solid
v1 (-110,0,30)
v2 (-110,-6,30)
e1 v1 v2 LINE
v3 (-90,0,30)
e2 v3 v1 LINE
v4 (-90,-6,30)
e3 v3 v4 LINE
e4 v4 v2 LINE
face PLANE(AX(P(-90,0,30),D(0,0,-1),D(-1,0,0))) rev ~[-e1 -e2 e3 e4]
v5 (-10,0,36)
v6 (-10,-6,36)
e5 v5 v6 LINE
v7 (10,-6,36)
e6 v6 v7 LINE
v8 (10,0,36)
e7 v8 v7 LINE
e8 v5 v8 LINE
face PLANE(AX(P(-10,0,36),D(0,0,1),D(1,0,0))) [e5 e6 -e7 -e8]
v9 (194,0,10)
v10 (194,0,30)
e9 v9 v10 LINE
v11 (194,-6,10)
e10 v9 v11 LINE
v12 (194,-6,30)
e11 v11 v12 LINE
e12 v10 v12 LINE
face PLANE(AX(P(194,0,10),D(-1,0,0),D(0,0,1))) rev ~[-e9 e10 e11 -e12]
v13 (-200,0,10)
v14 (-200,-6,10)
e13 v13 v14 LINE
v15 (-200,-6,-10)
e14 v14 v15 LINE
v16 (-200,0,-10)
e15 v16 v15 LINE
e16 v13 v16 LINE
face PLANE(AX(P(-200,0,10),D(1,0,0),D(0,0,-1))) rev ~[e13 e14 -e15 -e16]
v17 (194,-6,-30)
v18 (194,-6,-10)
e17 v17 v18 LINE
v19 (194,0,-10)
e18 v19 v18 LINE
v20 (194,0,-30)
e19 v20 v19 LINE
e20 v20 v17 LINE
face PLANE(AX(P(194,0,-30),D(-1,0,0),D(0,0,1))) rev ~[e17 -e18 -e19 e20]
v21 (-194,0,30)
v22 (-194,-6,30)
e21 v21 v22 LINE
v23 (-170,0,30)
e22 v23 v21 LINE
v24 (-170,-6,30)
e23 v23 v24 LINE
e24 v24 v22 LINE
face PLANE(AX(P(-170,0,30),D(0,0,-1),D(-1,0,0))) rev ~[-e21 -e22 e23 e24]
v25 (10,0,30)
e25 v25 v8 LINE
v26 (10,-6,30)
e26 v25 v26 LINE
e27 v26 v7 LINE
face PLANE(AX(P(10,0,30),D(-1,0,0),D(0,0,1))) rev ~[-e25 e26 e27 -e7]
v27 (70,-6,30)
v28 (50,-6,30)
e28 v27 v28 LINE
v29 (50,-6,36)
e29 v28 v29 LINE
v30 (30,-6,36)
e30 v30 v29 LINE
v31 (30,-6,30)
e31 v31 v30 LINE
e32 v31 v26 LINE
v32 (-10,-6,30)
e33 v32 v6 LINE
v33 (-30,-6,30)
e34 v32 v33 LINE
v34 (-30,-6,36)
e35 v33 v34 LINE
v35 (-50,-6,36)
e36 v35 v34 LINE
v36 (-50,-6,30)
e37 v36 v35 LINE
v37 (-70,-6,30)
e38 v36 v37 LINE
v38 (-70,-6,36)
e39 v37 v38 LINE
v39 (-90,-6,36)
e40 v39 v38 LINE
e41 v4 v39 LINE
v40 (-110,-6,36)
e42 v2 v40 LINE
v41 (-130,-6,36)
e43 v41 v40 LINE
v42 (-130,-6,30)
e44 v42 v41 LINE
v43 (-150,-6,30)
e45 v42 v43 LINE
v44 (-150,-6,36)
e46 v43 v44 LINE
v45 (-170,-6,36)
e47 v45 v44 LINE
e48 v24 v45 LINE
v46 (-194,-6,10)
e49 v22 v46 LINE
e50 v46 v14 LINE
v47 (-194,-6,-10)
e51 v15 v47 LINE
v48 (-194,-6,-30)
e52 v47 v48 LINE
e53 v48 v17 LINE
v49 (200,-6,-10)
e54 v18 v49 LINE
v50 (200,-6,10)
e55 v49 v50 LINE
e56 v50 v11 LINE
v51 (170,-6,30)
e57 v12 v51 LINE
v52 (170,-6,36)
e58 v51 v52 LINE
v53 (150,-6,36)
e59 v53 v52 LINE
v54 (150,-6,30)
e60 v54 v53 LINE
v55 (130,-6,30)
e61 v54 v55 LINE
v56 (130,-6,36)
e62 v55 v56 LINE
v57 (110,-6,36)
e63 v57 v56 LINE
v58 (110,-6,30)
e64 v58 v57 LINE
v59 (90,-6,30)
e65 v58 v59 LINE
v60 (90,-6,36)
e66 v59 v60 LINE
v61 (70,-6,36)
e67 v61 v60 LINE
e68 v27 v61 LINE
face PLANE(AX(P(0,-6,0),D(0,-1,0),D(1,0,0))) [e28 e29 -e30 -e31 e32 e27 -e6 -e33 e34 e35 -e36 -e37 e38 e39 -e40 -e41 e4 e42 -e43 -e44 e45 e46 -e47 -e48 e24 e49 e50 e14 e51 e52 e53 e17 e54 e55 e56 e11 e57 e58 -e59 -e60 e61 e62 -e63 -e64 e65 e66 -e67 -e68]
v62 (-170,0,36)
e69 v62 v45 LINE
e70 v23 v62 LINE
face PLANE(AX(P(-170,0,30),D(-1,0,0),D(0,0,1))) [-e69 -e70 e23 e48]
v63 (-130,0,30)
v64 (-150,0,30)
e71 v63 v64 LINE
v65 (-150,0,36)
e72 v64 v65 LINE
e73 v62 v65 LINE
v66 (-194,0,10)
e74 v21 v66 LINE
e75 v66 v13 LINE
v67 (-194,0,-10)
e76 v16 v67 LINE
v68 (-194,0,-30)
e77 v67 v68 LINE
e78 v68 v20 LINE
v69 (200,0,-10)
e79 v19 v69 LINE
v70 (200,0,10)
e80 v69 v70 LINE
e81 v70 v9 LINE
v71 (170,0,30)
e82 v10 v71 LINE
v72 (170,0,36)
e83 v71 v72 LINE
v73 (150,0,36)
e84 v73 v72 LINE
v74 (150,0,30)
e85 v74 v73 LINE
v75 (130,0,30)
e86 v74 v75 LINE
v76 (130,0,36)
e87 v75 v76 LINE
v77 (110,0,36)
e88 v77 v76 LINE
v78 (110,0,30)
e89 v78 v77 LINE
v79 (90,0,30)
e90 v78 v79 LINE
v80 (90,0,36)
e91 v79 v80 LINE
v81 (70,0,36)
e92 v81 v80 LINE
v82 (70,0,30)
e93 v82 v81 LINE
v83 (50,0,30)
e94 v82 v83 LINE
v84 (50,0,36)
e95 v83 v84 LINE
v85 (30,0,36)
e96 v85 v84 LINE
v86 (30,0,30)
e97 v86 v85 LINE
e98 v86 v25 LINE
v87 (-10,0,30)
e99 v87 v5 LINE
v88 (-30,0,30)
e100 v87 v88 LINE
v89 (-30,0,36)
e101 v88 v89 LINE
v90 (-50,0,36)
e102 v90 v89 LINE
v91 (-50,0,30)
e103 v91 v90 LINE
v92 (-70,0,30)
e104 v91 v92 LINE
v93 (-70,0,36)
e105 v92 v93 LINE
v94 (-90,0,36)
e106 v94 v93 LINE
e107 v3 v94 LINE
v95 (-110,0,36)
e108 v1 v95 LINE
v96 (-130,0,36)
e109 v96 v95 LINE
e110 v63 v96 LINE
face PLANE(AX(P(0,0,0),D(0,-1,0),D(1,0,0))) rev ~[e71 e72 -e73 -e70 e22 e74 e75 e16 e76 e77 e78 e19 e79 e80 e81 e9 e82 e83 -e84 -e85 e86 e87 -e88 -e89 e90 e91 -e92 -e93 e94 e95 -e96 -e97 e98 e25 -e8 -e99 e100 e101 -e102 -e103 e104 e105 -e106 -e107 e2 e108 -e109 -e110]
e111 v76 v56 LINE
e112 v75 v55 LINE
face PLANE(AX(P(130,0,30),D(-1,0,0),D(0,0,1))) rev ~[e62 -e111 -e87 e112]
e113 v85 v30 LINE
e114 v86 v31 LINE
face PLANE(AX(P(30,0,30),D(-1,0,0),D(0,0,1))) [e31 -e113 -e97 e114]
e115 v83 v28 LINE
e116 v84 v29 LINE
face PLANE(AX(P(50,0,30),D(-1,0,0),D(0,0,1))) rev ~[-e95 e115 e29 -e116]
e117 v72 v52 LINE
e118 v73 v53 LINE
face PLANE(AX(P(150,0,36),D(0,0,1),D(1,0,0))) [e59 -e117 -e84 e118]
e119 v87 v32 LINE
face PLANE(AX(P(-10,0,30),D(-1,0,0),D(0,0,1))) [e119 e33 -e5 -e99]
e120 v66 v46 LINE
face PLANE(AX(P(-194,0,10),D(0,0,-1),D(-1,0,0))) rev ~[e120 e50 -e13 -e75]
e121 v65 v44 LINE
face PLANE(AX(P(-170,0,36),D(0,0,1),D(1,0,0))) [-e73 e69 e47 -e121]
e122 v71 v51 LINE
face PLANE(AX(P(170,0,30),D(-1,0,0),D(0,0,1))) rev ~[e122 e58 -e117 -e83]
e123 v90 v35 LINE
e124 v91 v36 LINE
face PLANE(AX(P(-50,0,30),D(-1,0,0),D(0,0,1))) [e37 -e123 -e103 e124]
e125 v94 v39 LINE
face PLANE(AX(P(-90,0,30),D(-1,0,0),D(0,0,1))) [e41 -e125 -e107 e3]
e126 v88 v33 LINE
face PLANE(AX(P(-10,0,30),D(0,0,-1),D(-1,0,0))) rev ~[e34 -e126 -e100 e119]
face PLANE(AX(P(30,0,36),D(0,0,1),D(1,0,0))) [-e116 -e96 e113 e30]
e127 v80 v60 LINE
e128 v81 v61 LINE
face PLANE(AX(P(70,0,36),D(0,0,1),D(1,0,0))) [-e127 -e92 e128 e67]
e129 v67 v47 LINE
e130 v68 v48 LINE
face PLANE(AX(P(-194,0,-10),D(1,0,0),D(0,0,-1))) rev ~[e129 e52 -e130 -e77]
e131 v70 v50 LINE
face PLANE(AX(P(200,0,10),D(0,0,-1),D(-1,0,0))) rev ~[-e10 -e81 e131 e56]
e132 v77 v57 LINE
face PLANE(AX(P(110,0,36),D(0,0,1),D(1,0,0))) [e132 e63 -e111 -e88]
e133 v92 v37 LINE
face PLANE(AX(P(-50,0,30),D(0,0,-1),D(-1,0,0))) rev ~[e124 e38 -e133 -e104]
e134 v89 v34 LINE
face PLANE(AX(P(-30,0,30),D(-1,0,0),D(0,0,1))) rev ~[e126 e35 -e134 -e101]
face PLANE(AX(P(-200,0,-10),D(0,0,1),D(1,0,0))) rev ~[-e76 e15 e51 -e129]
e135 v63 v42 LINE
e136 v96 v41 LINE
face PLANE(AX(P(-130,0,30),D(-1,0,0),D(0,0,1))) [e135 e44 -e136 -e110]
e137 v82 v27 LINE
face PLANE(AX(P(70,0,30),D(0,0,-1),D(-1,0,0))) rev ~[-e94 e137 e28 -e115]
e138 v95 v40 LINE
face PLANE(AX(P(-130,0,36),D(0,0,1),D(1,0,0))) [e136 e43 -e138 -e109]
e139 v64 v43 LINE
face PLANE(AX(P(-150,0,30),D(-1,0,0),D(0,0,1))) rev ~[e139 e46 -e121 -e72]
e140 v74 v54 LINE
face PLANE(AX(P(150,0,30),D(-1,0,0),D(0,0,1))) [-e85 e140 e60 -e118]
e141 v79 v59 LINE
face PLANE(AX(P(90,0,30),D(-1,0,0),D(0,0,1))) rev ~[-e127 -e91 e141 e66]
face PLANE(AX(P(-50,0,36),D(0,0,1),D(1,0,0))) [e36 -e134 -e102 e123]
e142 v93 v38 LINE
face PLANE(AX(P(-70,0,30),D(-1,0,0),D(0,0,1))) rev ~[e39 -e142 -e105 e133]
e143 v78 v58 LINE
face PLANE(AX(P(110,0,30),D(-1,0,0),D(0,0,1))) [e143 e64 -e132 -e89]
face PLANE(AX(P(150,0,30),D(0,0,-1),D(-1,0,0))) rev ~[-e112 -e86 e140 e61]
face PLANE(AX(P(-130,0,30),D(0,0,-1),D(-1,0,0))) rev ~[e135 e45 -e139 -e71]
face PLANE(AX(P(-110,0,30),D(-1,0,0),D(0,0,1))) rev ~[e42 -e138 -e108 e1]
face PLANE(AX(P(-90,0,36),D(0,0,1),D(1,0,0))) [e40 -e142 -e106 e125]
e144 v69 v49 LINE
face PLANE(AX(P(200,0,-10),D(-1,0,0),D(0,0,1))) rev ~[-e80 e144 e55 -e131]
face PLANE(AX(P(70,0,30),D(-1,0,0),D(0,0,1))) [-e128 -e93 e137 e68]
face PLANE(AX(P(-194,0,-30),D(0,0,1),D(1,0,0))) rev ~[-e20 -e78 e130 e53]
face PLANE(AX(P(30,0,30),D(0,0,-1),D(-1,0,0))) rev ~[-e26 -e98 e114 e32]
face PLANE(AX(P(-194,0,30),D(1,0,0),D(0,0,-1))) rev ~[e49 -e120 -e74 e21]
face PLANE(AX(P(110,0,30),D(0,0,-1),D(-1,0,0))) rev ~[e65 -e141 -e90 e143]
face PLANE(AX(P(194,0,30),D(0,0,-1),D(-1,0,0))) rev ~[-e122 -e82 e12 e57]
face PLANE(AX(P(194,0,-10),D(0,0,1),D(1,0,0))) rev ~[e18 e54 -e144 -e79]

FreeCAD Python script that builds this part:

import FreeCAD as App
import Part
import Sketcher
from FreeCAD import Vector
Q = App.Units.Quantity

doc = App.newDocument("Part")
body = doc.addObject("PartDesign::Body", "Body")

sketch1 = body.newObject("Sketcher::SketchObject", "Sketch")
sketch1.AttachmentSupport = (doc.getObject("XZ_Plane"), [""])
sketch1.MapMode = "FlatFace"
sketch1.addGeometry(Part.LineSegment(Vector(-194, -30, 0), Vector(194, -30, 0)), False)
sketch1.addGeometry(Part.LineSegment(Vector(194, -30, 0), Vector(194, -10, 0)), False)
sketch1.addGeometry(Part.LineSegment(Vector(194, -10, 0), Vector(200, -10, 0)), False)
sketch1.addGeometry(Part.LineSegment(Vector(200, -10, 0), Vector(200, 10, 0)), False)
sketch1.addGeometry(Part.LineSegment(Vector(200, 10, 0), Vector(194, 10, 0)), False)
sketch1.addGeometry(Part.LineSegment(Vector(194, 10, 0), Vector(194, 30, 0)), False)
sketch1.addGeometry(Part.LineSegment(Vector(194, 30, 0), Vector(170, 30, 0)), False)
sketch1.addGeometry(Part.LineSegment(Vector(170, 30, 0), Vector(170, 36, 0)), False)
sketch1.addGeometry(Part.LineSegment(Vector(170, 36, 0), Vector(150, 36, 0)), False)
sketch1.addGeometry(Part.LineSegment(Vector(150, 36, 0), Vector(150, 30, 0)), False)
sketch1.addGeometry(Part.LineSegment(Vector(150, 30, 0), Vector(130, 30, 0)), False)
sketch1.addGeometry(Part.LineSegment(Vector(130, 30, 0), Vector(130, 36, 0)), False)
sketch1.addGeometry(Part.LineSegment(Vector(130, 36, 0), Vector(110, 36, 0)), False)
sketch1.addGeometry(Part.LineSegment(Vector(110, 36, 0), Vector(110, 30, 0)), False)
sketch1.addGeometry(Part.LineSegment(Vector(110, 30, 0), Vector(90, 30, 0)), False)
sketch1.addGeometry(Part.LineSegment(Vector(90, 30, 0), Vector(90, 36, 0)), False)
sketch1.addGeometry(Part.LineSegment(Vector(90, 36, 0), Vector(70, 36, 0)), False)
sketch1.addGeometry(Part.LineSegment(Vector(70, 36, 0), Vector(70, 30, 0)), False)
sketch1.addGeometry(Part.LineSegment(Vector(70, 30, 0), Vector(50, 30, 0)), False)
sketch1.addGeometry(Part.LineSegment(Vector(50, 30, 0), Vector(50, 36, 0)), False)
sketch1.addGeometry(Part.LineSegment(Vector(50, 36, 0), Vector(30, 36, 0)), False)
sketch1.addGeometry(Part.LineSegment(Vector(30, 36, 0), Vector(30, 30, 0)), False)
sketch1.addGeometry(Part.LineSegment(Vector(30, 30, 0), Vector(10, 30, 0)), False)
sketch1.addGeometry(Part.LineSegment(Vector(10, 30, 0), Vector(10, 36, 0)), False)
sketch1.addGeometry(Part.LineSegment(Vector(10, 36, 0), Vector(-10, 36, 0)), False)
sketch1.addGeometry(Part.LineSegment(Vector(-10, 36, 0), Vector(-10, 30, 0)), False)
sketch1.addGeometry(Part.LineSegment(Vector(-10, 30, 0), Vector(-30, 30, 0)), False)
sketch1.addGeometry(Part.LineSegment(Vector(-30, 30, 0), Vector(-30, 36, 0)), False)
sketch1.addGeometry(Part.LineSegment(Vector(-30, 36, 0), Vector(-50, 36, 0)), False)
sketch1.addGeometry(Part.LineSegment(Vector(-50, 36, 0), Vector(-50, 30, 0)), False)
sketch1.addGeometry(Part.LineSegment(Vector(-50, 30, 0), Vector(-70, 30, 0)), False)
sketch1.addGeometry(Part.LineSegment(Vector(-70, 30, 0), Vector(-70, 36, 0)), False)
sketch1.addGeometry(Part.LineSegment(Vector(-70, 36, 0), Vector(-90, 36, 0)), False)
sketch1.addGeometry(Part.LineSegment(Vector(-90, 36, 0), Vector(-90, 30, 0)), False)
sketch1.addGeometry(Part.LineSegment(Vector(-90, 30, 0), Vector(-110, 30, 0)), False)
sketch1.addGeometry(Part.LineSegment(Vector(-110, 30, 0), Vector(-110, 36, 0)), False)
sketch1.addGeometry(Part.LineSegment(Vector(-110, 36, 0), Vector(-130, 36, 0)), False)
sketch1.addGeometry(Part.LineSegment(Vector(-130, 36, 0), Vector(-130, 30, 0)), False)
sketch1.addGeometry(Part.LineSegment(Vector(-130, 30, 0), Vector(-150, 30, 0)), False)
sketch1.addGeometry(Part.LineSegment(Vector(-150, 30, 0), Vector(-150, 36, 0)), False)
sketch1.addGeometry(Part.LineSegment(Vector(-150, 36, 0), Vector(-170, 36, 0)), False)
sketch1.addGeometry(Part.LineSegment(Vector(-170, 36, 0), Vector(-170, 30, 0)), False)
sketch1.addGeometry(Part.LineSegment(Vector(-170, 30, 0), Vector(-194, 30, 0)), False)
sketch1.addGeometry(Part.LineSegment(Vector(-194, 30, 0), Vector(-194, 10, 0)), False)
sketch1.addGeometry(Part.LineSegment(Vector(-194, 10, 0), Vector(-200, 10, 0)), False)
sketch1.addGeometry(Part.LineSegment(Vector(-200, 10, 0), Vector(-200, -10, 0)), False)
sketch1.addGeometry(Part.LineSegment(Vector(-200, -10, 0), Vector(-194, -10, 0)), False)
sketch1.addGeometry(Part.LineSegment(Vector(-194, -10, 0), Vector(-194, -30, 0)), False)
sketch1.addConstraint(Sketcher.Constraint("Coincident", 0, 2, 1, 1))
sketch1.addConstraint(Sketcher.Constraint("Coincident", 1, 2, 2, 1))
sketch1.addConstraint(Sketcher.Constraint("Coincident", 2, 2, 3, 1))
sketch1.addConstraint(Sketcher.Constraint("Coincident", 3, 2, 4, 1))
sketch1.addConstraint(Sketcher.Constraint("Coincident", 4, 2, 5, 1))
sketch1.addConstraint(Sketcher.Constraint("Coincident", 5, 2, 6, 1))
sketch1.addConstraint(Sketcher.Constraint("Coincident", 6, 2, 7, 1))
sketch1.addConstraint(Sketcher.Constraint("Coincident", 7, 2, 8, 1))
sketch1.addConstraint(Sketcher.Constraint("Coincident", 8, 2, 9, 1))
sketch1.addConstraint(Sketcher.Constraint("Coincident", 9, 2, 10, 1))
sketch1.addConstraint(Sketcher.Constraint("Coincident", 10, 2, 11, 1))
sketch1.addConstraint(Sketcher.Constraint("Coincident", 11, 2, 12, 1))
sketch1.addConstraint(Sketcher.Constraint("Coincident", 12, 2, 13, 1))
sketch1.addConstraint(Sketcher.Constraint("Coincident", 13, 2, 14, 1))
sketch1.addConstraint(Sketcher.Constraint("Coincident", 14, 2, 15, 1))
sketch1.addConstraint(Sketcher.Constraint("Coincident", 15, 2, 16, 1))
sketch1.addConstraint(Sketcher.Constraint("Coincident", 16, 2, 17, 1))
sketch1.addConstraint(Sketcher.Constraint("Coincident", 17, 2, 18, 1))
sketch1.addConstraint(Sketcher.Constraint("Coincident", 18, 2, 19, 1))
sketch1.addConstraint(Sketcher.Constraint("Coincident", 19, 2, 20, 1))
sketch1.addConstraint(Sketcher.Constraint("Coincident", 20, 2, 21, 1))
sketch1.addConstraint(Sketcher.Constraint("Coincident", 21, 2, 22, 1))
sketch1.addConstraint(Sketcher.Constraint("Coincident", 22, 2, 23, 1))
sketch1.addConstraint(Sketcher.Constraint("Coincident", 23, 2, 24, 1))
sketch1.addConstraint(Sketcher.Constraint("Coincident", 24, 2, 25, 1))
sketch1.addConstraint(Sketcher.Constraint("Coincident", 25, 2, 26, 1))
sketch1.addConstraint(Sketcher.Constraint("Coincident", 26, 2, 27, 1))
sketch1.addConstraint(Sketcher.Constraint("Coincident", 27, 2, 28, 1))
sketch1.addConstraint(Sketcher.Constraint("Coincident", 28, 2, 29, 1))
sketch1.addConstraint(Sketcher.Constraint("Coincident", 29, 2, 30, 1))
sketch1.addConstraint(Sketcher.Constraint("Coincident", 30, 2, 31, 1))
sketch1.addConstraint(Sketcher.Constraint("Coincident", 31, 2, 32, 1))
sketch1.addConstraint(Sketcher.Constraint("Coincident", 32, 2, 33, 1))
sketch1.addConstraint(Sketcher.Constraint("Coincident", 33, 2, 34, 1))
sketch1.addConstraint(Sketcher.Constraint("Coincident", 34, 2, 35, 1))
sketch1.addConstraint(Sketcher.Constraint("Coincident", 35, 2, 36, 1))
sketch1.addConstraint(Sketcher.Constraint("Coincident", 36, 2, 37, 1))
sketch1.addConstraint(Sketcher.Constraint("Coincident", 37, 2, 38, 1))
sketch1.addConstraint(Sketcher.Constraint("Coincident", 38, 2, 39, 1))
sketch1.addConstraint(Sketcher.Constraint("Coincident", 39, 2, 40, 1))
sketch1.addConstraint(Sketcher.Constraint("Coincident", 40, 2, 41, 1))
sketch1.addConstraint(Sketcher.Constraint("Coincident", 41, 2, 42, 1))
sketch1.addConstraint(Sketcher.Constraint("Coincident", 42, 2, 43, 1))
sketch1.addConstraint(Sketcher.Constraint("Coincident", 43, 2, 44, 1))
sketch1.addConstraint(Sketcher.Constraint("Coincident", 44, 2, 45, 1))
sketch1.addConstraint(Sketcher.Constraint("Coincident", 45, 2, 46, 1))
sketch1.addConstraint(Sketcher.Constraint("Coincident", 46, 2, 47, 1))
sketch1.addConstraint(Sketcher.Constraint("Coincident", 47, 2, 0, 1))
sketch1.addConstraint(Sketcher.Constraint("Horizontal", 0))
sketch1.addConstraint(Sketcher.Constraint("Vertical", 1))
sketch1.addConstraint(Sketcher.Constraint("Horizontal", 2))
sketch1.addConstraint(Sketcher.Constraint("Vertical", 3))
sketch1.addConstraint(Sketcher.Constraint("Horizontal", 4))
sketch1.addConstraint(Sketcher.Constraint("Vertical", 5))
sketch1.addConstraint(Sketcher.Constraint("Horizontal", 6))
sketch1.addConstraint(Sketcher.Constraint("Vertical", 7))
sketch1.addConstraint(Sketcher.Constraint("Horizontal", 8))
sketch1.addConstraint(Sketcher.Constraint("Vertical", 9))
sketch1.addConstraint(Sketcher.Constraint("Horizontal", 10))
sketch1.addConstraint(Sketcher.Constraint("Vertical", 11))
sketch1.addConstraint(Sketcher.Constraint("Horizontal", 12))
sketch1.addConstraint(Sketcher.Constraint("Vertical", 13))
sketch1.addConstraint(Sketcher.Constraint("Horizontal", 14))
sketch1.addConstraint(Sketcher.Constraint("Vertical", 15))
sketch1.addConstraint(Sketcher.Constraint("Horizontal", 16))
sketch1.addConstraint(Sketcher.Constraint("Vertical", 17))
sketch1.addConstraint(Sketcher.Constraint("Horizontal", 18))
sketch1.addConstraint(Sketcher.Constraint("Vertical", 19))
sketch1.addConstraint(Sketcher.Constraint("Horizontal", 20))
sketch1.addConstraint(Sketcher.Constraint("Vertical", 21))
sketch1.addConstraint(Sketcher.Constraint("Horizontal", 22))
sketch1.addConstraint(Sketcher.Constraint("Vertical", 23))
sketch1.addConstraint(Sketcher.Constraint("Horizontal", 24))
sketch1.addConstraint(Sketcher.Constraint("Vertical", 25))
sketch1.addConstraint(Sketcher.Constraint("Horizontal", 26))
sketch1.addConstraint(Sketcher.Constraint("Vertical", 27))
sketch1.addConstraint(Sketcher.Constraint("Horizontal", 28))
sketch1.addConstraint(Sketcher.Constraint("Vertical", 29))
sketch1.addConstraint(Sketcher.Constraint("Horizontal", 30))
sketch1.addConstraint(Sketcher.Constraint("Vertical", 31))
sketch1.addConstraint(Sketcher.Constraint("Horizontal", 32))
sketch1.addConstraint(Sketcher.Constraint("Vertical", 33))
sketch1.addConstraint(Sketcher.Constraint("Horizontal", 34))
sketch1.addConstraint(Sketcher.Constraint("Vertical", 35))
sketch1.addConstraint(Sketcher.Constraint("Horizontal", 36))
sketch1.addConstraint(Sketcher.Constraint("Vertical", 37))
sketch1.addConstraint(Sketcher.Constraint("Horizontal", 38))
sketch1.addConstraint(Sketcher.Constraint("Vertical", 39))
sketch1.addConstraint(Sketcher.Constraint("Horizontal", 40))
sketch1.addConstraint(Sketcher.Constraint("Vertical", 41))
sketch1.addConstraint(Sketcher.Constraint("Horizontal", 42))
sketch1.addConstraint(Sketcher.Constraint("Vertical", 43))
sketch1.addConstraint(Sketcher.Constraint("Horizontal", 44))
sketch1.addConstraint(Sketcher.Constraint("Vertical", 45))
sketch1.addConstraint(Sketcher.Constraint("Horizontal", 46))
sketch1.addConstraint(Sketcher.Constraint("Vertical", 47))
sketch1.addConstraint(Sketcher.Constraint("Symmetric", 0, 2, 42, 2, -1, 1))
sketch1.addConstraint(Sketcher.Constraint("Symmetric", 2, 2, 44, 2, -1, 1))
sketch1.addConstraint(Sketcher.Constraint("Symmetric", 4, 2, 46, 2, -1, 1))
sketch1.addConstraint(Sketcher.Constraint("Symmetric", 22, 2, 25, 2, -2))
sketch1.addConstraint(Sketcher.Constraint("Symmetric", 20, 2, 27, 2, -2))
sketch1.addConstraint(Sketcher.Constraint("Symmetric", 18, 2, 29, 2, -2))
sketch1.addConstraint(Sketcher.Constraint("Symmetric", 16, 2, 31, 2, -2))
sketch1.addConstraint(Sketcher.Constraint("Symmetric", 14, 2, 33, 2, -2))
sketch1.addConstraint(Sketcher.Constraint("Symmetric", 12, 2, 35, 2, -2))
sketch1.addConstraint(Sketcher.Constraint("Symmetric", 10, 2, 37, 2, -2))
sketch1.addConstraint(Sketcher.Constraint("Symmetric", 8, 2, 39, 2, -2))
sketch1.addConstraint(Sketcher.Constraint("Symmetric", 6, 2, 41, 2, -2))
sketch1.addConstraint(Sketcher.Constraint("Symmetric", 4, 2, 43, 2, -2))
sketch1.addConstraint(Sketcher.Constraint("Horizontal", 6, 2, 9, 2))
sketch1.addConstraint(Sketcher.Constraint("Horizontal", 8, 2, 11, 2))
sketch1.addConstraint(Sketcher.Constraint("Horizontal", 10, 2, 13, 2))
sketch1.addConstraint(Sketcher.Constraint("Horizontal", 12, 2, 15, 2))
sketch1.addConstraint(Sketcher.Constraint("Horizontal", 14, 2, 17, 2))
sketch1.addConstraint(Sketcher.Constraint("Horizontal", 16, 2, 19, 2))
sketch1.addConstraint(Sketcher.Constraint("Horizontal", 18, 2, 21, 2))
sketch1.addConstraint(Sketcher.Constraint("Horizontal", 20, 2, 23, 2))
sketch1.addConstraint(Sketcher.Constraint("Equal", 8, 10))
sketch1.addConstraint(Sketcher.Constraint("Equal", 10, 12))
sketch1.addConstraint(Sketcher.Constraint("Equal", 12, 14))
sketch1.addConstraint(Sketcher.Constraint("Equal", 14, 16))
sketch1.addConstraint(Sketcher.Constraint("Equal", 16, 18))
sketch1.addConstraint(Sketcher.Constraint("Equal", 18, 20))
sketch1.addConstraint(Sketcher.Constraint("Equal", 20, 22))
sketch1.addConstraint(Sketcher.Constraint("Equal", 22, 24))
sketch1.addConstraint(Sketcher.Constraint("Equal", 40, 1))
sketch1.addConstraint(Sketcher.Constraint("Equal", 1, 3))
sketch1.addConstraint(Sketcher.Constraint("Equal", 46, 7))
sketch1.addConstraint(Sketcher.Constraint("DistanceX", 0, 1, 0, 2, Q("388 mm")))
sketch1.addConstraint(Sketcher.Constraint("DistanceX", 2, 1, 2, 2, Q("6 mm")))
sketch1.addConstraint(Sketcher.Constraint("DistanceX", 6, 2, 6, 1, Q("24 mm")))
pad1 = body.newObject("PartDesign::Pad", "Pad")
pad1.Profile = sketch1
pad1.Length = 6

doc.recompute()
